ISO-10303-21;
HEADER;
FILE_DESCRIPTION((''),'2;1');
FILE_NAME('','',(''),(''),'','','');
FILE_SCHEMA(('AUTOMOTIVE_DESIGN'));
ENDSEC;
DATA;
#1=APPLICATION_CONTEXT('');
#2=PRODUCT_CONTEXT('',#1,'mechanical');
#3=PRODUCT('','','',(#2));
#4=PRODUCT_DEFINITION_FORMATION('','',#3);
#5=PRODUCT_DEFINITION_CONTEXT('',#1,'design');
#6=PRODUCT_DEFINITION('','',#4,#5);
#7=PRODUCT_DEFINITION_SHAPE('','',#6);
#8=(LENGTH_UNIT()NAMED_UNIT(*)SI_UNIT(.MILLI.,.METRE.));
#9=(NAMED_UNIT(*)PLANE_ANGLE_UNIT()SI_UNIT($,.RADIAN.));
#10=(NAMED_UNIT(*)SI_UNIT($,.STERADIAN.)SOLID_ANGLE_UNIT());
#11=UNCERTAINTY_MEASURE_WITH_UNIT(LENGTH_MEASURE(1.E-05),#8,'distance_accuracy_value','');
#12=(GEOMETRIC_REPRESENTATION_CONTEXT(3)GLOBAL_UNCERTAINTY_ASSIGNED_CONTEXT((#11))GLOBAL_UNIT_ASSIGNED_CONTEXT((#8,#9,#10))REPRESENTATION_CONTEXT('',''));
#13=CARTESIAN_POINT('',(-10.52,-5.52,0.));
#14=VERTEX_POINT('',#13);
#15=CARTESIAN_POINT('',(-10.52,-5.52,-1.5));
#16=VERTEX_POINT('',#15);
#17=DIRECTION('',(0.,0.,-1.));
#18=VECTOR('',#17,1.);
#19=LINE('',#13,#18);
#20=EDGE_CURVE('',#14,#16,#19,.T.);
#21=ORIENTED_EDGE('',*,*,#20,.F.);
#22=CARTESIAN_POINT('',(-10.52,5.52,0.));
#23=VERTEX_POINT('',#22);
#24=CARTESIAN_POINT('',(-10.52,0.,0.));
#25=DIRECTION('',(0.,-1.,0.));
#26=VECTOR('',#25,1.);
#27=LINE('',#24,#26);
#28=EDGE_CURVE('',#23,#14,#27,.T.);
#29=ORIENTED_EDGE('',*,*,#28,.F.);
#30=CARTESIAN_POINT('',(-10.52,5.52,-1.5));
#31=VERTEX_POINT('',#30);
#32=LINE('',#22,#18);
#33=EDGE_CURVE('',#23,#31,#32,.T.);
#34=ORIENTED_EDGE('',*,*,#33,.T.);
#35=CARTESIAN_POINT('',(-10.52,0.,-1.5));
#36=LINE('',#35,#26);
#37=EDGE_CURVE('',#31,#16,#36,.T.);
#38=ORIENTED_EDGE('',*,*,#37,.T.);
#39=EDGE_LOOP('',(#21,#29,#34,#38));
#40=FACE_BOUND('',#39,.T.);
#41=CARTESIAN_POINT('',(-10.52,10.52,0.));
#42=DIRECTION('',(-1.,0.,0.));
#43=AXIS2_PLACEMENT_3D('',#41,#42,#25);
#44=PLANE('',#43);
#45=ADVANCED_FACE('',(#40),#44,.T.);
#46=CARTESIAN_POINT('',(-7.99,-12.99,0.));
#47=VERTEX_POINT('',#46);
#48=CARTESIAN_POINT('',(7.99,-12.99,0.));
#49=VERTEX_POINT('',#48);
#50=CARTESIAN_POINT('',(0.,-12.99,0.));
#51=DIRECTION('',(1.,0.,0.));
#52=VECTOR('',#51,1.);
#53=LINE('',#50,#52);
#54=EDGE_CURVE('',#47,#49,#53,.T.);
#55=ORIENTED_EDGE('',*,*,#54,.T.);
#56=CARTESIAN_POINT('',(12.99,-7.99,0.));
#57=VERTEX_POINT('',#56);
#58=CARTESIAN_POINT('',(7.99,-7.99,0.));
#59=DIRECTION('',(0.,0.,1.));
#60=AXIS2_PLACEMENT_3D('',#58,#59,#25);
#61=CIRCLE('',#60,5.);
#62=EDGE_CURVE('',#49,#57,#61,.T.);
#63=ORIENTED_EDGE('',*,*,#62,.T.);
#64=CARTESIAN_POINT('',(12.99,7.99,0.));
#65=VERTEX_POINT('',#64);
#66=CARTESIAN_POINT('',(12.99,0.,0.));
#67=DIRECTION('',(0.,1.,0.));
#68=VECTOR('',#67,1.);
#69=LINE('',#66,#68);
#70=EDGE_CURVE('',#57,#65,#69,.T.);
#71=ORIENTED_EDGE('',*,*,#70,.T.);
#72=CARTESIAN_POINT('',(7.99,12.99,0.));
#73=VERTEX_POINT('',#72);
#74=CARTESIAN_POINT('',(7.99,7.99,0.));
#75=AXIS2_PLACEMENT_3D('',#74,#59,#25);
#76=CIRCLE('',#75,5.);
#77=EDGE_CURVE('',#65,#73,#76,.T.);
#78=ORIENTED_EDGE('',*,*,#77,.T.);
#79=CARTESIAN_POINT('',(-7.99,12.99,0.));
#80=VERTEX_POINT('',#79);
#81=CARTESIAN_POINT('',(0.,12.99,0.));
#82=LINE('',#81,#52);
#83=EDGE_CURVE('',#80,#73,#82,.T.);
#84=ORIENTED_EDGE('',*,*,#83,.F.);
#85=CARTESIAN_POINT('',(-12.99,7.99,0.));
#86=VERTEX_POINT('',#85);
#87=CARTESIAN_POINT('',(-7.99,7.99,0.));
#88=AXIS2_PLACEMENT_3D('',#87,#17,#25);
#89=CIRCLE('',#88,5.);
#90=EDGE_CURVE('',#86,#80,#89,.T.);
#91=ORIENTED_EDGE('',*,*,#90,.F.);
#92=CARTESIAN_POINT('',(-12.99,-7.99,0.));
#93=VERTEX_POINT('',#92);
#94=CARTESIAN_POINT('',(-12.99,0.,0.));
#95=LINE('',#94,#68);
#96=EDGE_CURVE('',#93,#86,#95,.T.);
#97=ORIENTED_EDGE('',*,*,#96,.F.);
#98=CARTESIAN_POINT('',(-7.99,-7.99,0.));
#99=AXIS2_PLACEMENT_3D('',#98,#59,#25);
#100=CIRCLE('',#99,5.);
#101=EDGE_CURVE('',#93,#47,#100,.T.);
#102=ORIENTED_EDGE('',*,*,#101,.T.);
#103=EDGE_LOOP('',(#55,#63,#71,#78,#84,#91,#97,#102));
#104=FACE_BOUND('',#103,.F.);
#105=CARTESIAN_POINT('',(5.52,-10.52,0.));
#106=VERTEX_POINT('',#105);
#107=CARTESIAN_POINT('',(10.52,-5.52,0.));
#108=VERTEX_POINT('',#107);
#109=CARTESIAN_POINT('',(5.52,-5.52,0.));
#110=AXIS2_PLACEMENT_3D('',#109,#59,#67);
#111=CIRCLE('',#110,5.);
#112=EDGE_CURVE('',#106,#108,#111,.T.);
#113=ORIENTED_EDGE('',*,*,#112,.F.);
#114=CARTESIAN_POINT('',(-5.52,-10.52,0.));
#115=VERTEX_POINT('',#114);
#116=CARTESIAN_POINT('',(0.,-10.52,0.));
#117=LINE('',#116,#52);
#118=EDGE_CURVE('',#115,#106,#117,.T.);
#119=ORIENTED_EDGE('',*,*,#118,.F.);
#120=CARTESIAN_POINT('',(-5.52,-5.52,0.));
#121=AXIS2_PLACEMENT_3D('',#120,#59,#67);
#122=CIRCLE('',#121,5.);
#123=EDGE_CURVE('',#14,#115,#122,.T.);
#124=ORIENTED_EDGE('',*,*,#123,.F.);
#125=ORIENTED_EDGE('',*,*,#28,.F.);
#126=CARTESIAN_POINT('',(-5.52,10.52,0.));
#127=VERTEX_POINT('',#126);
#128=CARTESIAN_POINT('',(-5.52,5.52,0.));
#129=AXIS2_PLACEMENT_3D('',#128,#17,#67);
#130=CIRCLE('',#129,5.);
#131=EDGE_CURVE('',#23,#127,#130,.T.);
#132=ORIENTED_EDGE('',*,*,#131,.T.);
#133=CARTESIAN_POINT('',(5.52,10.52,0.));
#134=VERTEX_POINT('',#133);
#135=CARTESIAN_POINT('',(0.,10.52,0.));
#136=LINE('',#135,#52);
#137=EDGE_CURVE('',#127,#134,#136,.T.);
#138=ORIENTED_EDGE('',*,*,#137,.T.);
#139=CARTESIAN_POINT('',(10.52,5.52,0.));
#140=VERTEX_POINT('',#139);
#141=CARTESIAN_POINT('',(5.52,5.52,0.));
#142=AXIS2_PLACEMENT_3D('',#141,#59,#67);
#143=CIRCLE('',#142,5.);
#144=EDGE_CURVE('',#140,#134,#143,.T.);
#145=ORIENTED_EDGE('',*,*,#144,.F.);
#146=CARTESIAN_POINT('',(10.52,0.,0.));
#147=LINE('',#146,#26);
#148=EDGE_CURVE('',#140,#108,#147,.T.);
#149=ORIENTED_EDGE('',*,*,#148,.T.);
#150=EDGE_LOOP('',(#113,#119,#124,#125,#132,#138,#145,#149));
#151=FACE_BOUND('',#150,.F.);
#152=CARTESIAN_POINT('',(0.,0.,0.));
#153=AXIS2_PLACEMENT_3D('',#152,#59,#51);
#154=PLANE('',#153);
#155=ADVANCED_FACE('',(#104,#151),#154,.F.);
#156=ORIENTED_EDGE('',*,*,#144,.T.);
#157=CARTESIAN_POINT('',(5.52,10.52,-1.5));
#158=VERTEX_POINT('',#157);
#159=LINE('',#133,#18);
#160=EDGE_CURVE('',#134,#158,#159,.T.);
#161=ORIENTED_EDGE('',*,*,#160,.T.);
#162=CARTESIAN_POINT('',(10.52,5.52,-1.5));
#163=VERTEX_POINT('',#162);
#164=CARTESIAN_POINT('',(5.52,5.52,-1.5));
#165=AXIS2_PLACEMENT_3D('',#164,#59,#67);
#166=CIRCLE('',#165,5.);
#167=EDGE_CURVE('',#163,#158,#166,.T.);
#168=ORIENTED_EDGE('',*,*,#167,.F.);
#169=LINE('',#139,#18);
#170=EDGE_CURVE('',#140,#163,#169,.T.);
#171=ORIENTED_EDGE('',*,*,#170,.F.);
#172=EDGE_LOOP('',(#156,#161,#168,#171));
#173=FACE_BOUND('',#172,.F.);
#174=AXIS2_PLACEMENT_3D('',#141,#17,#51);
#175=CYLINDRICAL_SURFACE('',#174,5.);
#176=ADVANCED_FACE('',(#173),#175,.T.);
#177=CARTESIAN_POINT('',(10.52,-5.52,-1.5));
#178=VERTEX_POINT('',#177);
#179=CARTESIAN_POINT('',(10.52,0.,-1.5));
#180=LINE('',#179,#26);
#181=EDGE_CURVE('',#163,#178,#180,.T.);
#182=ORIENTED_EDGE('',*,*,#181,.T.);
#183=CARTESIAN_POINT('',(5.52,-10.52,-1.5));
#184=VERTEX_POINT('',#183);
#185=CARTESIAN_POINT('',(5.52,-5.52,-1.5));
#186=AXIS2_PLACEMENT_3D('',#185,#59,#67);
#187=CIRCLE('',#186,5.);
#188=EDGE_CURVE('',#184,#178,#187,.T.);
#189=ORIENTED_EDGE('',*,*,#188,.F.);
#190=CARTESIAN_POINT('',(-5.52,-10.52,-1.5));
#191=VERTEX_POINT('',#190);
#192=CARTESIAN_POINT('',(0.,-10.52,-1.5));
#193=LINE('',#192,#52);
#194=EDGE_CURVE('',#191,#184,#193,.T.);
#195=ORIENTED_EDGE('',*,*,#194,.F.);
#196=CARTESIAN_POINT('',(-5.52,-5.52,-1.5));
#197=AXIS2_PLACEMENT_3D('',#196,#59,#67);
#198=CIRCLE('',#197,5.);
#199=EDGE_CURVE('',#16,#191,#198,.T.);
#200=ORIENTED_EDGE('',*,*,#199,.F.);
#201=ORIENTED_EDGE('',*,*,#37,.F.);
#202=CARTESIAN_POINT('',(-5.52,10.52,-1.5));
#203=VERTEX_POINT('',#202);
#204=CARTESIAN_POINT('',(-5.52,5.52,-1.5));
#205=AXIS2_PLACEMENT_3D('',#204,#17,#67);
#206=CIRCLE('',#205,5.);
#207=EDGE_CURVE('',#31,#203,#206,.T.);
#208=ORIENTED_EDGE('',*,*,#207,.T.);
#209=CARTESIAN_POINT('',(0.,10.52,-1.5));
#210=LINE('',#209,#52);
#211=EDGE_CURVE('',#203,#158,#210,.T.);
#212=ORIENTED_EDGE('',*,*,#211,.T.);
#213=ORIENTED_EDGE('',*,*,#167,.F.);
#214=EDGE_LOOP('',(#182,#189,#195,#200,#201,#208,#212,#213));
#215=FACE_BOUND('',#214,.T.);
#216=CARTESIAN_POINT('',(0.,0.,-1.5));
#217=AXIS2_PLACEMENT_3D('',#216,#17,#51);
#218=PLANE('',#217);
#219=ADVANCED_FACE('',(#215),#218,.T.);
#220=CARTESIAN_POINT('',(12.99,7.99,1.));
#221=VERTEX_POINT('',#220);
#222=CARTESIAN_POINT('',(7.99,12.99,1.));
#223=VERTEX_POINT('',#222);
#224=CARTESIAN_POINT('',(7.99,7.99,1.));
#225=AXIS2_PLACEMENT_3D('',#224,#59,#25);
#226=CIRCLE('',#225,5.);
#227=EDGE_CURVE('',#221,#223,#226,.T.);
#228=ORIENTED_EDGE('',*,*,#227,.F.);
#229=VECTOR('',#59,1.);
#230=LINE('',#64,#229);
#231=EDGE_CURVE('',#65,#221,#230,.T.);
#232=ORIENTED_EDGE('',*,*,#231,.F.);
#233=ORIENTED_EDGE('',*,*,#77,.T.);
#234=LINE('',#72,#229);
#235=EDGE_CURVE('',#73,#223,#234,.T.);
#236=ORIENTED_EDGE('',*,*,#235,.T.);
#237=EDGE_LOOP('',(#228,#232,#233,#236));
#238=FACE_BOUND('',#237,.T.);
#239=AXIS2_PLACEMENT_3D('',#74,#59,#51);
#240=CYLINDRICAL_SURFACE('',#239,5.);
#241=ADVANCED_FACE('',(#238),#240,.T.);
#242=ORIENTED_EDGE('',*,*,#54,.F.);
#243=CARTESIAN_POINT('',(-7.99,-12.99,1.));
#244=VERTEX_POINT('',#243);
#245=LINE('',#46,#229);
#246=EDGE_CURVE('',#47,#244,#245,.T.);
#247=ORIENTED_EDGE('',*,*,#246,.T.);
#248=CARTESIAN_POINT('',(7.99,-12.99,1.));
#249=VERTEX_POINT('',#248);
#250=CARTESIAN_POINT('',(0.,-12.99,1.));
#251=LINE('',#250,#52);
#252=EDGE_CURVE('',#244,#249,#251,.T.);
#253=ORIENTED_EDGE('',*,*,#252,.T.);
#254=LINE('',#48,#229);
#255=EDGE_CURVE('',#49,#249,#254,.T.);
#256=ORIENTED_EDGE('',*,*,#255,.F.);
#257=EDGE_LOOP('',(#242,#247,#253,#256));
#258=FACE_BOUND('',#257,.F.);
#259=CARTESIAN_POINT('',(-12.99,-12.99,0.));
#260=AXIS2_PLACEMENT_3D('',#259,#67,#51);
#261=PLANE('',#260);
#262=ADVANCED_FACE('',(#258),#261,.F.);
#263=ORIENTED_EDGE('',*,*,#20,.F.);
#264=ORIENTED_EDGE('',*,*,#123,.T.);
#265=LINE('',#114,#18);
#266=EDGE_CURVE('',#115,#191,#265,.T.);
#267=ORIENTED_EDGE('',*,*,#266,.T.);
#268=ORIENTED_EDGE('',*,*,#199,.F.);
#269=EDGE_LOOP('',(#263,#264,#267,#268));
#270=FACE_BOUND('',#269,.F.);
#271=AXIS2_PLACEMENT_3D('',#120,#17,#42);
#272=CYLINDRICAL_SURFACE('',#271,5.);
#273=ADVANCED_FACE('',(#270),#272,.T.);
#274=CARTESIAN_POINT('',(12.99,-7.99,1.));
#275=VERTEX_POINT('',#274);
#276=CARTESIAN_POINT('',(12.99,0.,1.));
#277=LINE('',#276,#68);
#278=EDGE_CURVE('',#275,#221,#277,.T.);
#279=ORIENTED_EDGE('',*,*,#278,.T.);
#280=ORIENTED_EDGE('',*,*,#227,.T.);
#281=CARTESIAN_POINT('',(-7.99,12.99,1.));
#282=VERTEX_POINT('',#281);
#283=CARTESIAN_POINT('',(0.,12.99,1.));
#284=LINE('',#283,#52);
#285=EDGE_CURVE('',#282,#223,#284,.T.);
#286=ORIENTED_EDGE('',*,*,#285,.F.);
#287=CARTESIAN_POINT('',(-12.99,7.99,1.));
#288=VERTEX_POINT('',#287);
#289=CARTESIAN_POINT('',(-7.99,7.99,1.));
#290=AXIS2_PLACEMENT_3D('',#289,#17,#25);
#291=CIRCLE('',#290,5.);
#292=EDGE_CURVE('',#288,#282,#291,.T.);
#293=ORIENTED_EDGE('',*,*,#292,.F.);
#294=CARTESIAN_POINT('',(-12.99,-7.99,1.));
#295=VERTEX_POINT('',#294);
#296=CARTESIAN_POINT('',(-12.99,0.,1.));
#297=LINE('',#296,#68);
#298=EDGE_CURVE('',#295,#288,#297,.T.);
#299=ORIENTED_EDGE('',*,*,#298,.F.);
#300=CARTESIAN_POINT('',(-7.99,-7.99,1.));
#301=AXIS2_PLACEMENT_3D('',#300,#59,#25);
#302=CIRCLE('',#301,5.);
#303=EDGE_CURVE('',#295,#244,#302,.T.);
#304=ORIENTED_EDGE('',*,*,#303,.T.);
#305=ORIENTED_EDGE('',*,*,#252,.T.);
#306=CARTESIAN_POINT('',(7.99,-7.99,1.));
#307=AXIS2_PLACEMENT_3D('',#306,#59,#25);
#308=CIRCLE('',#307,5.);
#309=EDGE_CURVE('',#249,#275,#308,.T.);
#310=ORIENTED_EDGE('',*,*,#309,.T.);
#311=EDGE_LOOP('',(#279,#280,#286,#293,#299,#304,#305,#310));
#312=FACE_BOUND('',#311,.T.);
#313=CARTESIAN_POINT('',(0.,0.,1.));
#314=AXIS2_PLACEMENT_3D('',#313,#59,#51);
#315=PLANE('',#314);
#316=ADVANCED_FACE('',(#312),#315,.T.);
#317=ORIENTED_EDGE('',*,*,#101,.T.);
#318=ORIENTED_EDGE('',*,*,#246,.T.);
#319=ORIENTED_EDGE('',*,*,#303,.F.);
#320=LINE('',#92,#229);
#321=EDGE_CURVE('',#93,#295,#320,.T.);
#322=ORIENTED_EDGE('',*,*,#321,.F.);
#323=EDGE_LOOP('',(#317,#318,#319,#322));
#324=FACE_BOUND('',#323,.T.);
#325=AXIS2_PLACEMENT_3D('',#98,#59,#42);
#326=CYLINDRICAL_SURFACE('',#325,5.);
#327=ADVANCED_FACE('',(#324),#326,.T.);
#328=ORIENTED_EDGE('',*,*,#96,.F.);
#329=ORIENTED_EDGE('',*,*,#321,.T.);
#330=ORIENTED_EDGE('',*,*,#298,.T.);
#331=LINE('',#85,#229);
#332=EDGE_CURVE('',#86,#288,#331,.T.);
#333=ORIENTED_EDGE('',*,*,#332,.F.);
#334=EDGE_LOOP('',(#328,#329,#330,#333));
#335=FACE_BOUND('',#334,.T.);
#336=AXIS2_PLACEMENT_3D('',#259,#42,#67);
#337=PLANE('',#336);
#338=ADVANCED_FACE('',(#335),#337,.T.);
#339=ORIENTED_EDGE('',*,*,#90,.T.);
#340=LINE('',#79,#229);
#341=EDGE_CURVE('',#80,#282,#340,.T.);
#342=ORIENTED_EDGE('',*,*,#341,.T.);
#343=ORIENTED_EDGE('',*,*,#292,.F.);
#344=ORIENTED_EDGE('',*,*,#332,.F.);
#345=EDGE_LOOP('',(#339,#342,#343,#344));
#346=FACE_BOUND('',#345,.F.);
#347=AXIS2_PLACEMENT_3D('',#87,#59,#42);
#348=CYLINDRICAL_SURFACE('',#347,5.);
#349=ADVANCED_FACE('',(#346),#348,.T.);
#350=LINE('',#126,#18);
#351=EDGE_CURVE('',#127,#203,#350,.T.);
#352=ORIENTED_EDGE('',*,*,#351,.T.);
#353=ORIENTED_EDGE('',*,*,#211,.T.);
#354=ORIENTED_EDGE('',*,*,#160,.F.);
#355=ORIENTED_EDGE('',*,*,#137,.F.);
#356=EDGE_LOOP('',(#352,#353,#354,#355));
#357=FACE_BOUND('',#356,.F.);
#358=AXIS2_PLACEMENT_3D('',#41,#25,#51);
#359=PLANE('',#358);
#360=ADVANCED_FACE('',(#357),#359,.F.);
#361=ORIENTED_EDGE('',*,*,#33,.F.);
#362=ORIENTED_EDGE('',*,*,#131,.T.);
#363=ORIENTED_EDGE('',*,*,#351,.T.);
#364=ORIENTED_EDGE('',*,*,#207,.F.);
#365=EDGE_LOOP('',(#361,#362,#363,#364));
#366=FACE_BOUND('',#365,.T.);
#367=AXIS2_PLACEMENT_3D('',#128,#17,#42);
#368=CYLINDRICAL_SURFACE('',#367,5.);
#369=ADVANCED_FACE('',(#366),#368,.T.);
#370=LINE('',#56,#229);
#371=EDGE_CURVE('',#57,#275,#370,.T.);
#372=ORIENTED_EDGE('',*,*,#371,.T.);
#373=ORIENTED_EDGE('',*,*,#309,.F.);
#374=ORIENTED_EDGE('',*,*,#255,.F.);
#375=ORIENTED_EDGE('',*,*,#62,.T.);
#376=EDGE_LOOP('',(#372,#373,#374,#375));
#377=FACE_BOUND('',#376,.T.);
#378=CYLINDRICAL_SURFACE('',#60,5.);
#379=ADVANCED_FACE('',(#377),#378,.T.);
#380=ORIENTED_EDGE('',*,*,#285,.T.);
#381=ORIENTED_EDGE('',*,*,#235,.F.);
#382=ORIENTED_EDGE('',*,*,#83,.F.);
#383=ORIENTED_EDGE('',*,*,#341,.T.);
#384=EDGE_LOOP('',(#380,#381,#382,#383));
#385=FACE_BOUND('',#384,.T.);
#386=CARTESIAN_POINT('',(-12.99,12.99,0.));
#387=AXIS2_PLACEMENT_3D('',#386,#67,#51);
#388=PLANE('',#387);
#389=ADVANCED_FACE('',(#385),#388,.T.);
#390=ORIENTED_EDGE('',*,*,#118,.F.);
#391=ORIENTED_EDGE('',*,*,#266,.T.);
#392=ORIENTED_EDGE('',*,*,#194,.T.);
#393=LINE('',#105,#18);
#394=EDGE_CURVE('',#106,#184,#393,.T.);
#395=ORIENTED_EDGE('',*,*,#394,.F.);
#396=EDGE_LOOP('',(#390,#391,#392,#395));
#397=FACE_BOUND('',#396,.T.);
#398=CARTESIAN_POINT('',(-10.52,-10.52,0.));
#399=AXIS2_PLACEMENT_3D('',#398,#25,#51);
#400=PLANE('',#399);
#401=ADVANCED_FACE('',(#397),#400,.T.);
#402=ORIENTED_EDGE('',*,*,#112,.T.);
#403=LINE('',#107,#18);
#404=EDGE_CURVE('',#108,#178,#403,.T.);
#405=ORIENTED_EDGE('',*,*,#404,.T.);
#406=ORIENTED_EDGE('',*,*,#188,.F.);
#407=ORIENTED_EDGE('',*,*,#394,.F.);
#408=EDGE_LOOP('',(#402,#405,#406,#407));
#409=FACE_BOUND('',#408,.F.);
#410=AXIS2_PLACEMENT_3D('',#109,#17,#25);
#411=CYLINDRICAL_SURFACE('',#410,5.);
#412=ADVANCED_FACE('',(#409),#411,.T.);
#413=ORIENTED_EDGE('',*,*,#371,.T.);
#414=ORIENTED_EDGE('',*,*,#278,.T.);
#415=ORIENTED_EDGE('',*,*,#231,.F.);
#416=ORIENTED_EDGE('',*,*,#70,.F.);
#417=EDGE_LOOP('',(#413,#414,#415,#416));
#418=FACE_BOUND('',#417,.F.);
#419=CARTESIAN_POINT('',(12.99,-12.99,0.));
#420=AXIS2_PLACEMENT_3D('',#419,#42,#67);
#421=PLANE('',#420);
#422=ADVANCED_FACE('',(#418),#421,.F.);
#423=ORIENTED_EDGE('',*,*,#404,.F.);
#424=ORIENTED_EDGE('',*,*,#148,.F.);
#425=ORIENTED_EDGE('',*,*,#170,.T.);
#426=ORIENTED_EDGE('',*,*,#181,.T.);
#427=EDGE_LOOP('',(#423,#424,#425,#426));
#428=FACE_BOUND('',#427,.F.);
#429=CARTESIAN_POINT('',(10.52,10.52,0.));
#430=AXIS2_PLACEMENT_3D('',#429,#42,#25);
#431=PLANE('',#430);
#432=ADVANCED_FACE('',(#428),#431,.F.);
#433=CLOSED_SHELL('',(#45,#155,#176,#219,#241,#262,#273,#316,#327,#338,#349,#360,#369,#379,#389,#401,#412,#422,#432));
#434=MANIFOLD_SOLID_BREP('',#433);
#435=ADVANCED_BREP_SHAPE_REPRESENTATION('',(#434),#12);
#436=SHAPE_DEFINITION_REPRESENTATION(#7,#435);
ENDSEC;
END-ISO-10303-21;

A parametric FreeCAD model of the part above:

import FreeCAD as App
import Part
import Sketcher

V = App.Vector
Q = App.Units.Quantity


def edges_at(feature, points):
    """Names of the edges that pass closest to the given points."""
    edges = feature.Shape.Edges
    near = lambda p: min(range(len(edges)), key=lambda i: edges[i].distToShape(Part.Vertex(*p))[0])
    return sorted({f"Edge{near(p) + 1}" for p in points})


def add_polygon(sketch, points):
    """Adds a closed chain of lines whose ends are joined by coincident constraints."""
    first, n = sketch.GeometryCount, len(points)
    for a, b in zip(points, points[1:] + points[:1]):
        sketch.addGeometry(Part.LineSegment(App.Vector(*a, 0), App.Vector(*b, 0)), False)
    for i in range(n):
        sketch.addConstraint(Sketcher.Constraint("Coincident", first + i, 2, first + (i + 1) % n, 1))

doc = App.newDocument("Part")
body = doc.addObject("PartDesign::Body", "Body")

sketch1 = body.newObject("Sketcher::SketchObject", "Sketch")
sketch1.AttachmentSupport = (doc.getObject("XY_Plane"), [""])
sketch1.MapMode = "FlatFace"
add_polygon(sketch1, [(-12.99, 12.99), (-12.99, -12.99), (12.99, -12.99), (12.99, 12.99)])
sketch1.addConstraint([
    Sketcher.Constraint("Vertical", 0),
    Sketcher.Constraint("Horizontal", 1),
    Sketcher.Constraint("Vertical", 2),
    Sketcher.Constraint("Horizontal", 3),
    Sketcher.Constraint("Symmetric", 0, 2, 2, 2, -1, 1),
    Sketcher.Constraint("Equal", 3, 0),
    Sketcher.Constraint("DistanceX", 1, 1, 1, 2, Q("25.98 mm")),
])
pad1 = body.newObject("PartDesign::Pad", "Pad")
pad1.Profile = sketch1
pad1.Length = 1
doc.recompute()

fillet = body.newObject("PartDesign::Fillet", "Fillet")
fillet.Base = (pad1, edges_at(pad1, [
    (-12.99, -12.99, 0.5),
    (12.99, -12.99, 0.5),
    (12.99, 12.99, 0.5),
    (-12.99, 12.99, 0.5),
]))
fillet.Radius = 5

sketch2 = body.newObject("Sketcher::SketchObject", "Sketch001")
sketch2.AttachmentSupport = (doc.getObject("XY_Plane"), [""])
sketch2.MapMode = "FlatFace"
add_polygon(sketch2, [(-10.52, -10.52), (-10.52, 10.52), (10.52, 10.52), (10.52, -10.52)])
sketch2.addConstraint([
    Sketcher.Constraint("Vertical", 0),
    Sketcher.Constraint("Horizontal", 1),
    Sketcher.Constraint("Vertical", 2),
    Sketcher.Constraint("Horizontal", 3),
    Sketcher.Constraint("Symmetric", 0, 2, 2, 2, -1, 1),
    Sketcher.Constraint("Equal", 3, 0),
    Sketcher.Constraint("DistanceX", 1, 1, 1, 2, Q("21.04 mm")),
])
pad2 = body.newObject("PartDesign::Pad", "Pad001")
pad2.Profile = sketch2
pad2.Length = 1.5
pad2.Reversed = True
doc.recompute()

fillet2 = body.newObject("PartDesign::Fillet", "Fillet001")
fillet2.Base = (pad2, edges_at(pad2, [
    (10.52, -10.52, -0.75),
    (-10.52, -10.52, -0.75),
    (10.52, 10.52, -0.75),
    (-10.52, 10.52, -0.75),
]))
fillet2.Radius = 5

doc.recompute()
